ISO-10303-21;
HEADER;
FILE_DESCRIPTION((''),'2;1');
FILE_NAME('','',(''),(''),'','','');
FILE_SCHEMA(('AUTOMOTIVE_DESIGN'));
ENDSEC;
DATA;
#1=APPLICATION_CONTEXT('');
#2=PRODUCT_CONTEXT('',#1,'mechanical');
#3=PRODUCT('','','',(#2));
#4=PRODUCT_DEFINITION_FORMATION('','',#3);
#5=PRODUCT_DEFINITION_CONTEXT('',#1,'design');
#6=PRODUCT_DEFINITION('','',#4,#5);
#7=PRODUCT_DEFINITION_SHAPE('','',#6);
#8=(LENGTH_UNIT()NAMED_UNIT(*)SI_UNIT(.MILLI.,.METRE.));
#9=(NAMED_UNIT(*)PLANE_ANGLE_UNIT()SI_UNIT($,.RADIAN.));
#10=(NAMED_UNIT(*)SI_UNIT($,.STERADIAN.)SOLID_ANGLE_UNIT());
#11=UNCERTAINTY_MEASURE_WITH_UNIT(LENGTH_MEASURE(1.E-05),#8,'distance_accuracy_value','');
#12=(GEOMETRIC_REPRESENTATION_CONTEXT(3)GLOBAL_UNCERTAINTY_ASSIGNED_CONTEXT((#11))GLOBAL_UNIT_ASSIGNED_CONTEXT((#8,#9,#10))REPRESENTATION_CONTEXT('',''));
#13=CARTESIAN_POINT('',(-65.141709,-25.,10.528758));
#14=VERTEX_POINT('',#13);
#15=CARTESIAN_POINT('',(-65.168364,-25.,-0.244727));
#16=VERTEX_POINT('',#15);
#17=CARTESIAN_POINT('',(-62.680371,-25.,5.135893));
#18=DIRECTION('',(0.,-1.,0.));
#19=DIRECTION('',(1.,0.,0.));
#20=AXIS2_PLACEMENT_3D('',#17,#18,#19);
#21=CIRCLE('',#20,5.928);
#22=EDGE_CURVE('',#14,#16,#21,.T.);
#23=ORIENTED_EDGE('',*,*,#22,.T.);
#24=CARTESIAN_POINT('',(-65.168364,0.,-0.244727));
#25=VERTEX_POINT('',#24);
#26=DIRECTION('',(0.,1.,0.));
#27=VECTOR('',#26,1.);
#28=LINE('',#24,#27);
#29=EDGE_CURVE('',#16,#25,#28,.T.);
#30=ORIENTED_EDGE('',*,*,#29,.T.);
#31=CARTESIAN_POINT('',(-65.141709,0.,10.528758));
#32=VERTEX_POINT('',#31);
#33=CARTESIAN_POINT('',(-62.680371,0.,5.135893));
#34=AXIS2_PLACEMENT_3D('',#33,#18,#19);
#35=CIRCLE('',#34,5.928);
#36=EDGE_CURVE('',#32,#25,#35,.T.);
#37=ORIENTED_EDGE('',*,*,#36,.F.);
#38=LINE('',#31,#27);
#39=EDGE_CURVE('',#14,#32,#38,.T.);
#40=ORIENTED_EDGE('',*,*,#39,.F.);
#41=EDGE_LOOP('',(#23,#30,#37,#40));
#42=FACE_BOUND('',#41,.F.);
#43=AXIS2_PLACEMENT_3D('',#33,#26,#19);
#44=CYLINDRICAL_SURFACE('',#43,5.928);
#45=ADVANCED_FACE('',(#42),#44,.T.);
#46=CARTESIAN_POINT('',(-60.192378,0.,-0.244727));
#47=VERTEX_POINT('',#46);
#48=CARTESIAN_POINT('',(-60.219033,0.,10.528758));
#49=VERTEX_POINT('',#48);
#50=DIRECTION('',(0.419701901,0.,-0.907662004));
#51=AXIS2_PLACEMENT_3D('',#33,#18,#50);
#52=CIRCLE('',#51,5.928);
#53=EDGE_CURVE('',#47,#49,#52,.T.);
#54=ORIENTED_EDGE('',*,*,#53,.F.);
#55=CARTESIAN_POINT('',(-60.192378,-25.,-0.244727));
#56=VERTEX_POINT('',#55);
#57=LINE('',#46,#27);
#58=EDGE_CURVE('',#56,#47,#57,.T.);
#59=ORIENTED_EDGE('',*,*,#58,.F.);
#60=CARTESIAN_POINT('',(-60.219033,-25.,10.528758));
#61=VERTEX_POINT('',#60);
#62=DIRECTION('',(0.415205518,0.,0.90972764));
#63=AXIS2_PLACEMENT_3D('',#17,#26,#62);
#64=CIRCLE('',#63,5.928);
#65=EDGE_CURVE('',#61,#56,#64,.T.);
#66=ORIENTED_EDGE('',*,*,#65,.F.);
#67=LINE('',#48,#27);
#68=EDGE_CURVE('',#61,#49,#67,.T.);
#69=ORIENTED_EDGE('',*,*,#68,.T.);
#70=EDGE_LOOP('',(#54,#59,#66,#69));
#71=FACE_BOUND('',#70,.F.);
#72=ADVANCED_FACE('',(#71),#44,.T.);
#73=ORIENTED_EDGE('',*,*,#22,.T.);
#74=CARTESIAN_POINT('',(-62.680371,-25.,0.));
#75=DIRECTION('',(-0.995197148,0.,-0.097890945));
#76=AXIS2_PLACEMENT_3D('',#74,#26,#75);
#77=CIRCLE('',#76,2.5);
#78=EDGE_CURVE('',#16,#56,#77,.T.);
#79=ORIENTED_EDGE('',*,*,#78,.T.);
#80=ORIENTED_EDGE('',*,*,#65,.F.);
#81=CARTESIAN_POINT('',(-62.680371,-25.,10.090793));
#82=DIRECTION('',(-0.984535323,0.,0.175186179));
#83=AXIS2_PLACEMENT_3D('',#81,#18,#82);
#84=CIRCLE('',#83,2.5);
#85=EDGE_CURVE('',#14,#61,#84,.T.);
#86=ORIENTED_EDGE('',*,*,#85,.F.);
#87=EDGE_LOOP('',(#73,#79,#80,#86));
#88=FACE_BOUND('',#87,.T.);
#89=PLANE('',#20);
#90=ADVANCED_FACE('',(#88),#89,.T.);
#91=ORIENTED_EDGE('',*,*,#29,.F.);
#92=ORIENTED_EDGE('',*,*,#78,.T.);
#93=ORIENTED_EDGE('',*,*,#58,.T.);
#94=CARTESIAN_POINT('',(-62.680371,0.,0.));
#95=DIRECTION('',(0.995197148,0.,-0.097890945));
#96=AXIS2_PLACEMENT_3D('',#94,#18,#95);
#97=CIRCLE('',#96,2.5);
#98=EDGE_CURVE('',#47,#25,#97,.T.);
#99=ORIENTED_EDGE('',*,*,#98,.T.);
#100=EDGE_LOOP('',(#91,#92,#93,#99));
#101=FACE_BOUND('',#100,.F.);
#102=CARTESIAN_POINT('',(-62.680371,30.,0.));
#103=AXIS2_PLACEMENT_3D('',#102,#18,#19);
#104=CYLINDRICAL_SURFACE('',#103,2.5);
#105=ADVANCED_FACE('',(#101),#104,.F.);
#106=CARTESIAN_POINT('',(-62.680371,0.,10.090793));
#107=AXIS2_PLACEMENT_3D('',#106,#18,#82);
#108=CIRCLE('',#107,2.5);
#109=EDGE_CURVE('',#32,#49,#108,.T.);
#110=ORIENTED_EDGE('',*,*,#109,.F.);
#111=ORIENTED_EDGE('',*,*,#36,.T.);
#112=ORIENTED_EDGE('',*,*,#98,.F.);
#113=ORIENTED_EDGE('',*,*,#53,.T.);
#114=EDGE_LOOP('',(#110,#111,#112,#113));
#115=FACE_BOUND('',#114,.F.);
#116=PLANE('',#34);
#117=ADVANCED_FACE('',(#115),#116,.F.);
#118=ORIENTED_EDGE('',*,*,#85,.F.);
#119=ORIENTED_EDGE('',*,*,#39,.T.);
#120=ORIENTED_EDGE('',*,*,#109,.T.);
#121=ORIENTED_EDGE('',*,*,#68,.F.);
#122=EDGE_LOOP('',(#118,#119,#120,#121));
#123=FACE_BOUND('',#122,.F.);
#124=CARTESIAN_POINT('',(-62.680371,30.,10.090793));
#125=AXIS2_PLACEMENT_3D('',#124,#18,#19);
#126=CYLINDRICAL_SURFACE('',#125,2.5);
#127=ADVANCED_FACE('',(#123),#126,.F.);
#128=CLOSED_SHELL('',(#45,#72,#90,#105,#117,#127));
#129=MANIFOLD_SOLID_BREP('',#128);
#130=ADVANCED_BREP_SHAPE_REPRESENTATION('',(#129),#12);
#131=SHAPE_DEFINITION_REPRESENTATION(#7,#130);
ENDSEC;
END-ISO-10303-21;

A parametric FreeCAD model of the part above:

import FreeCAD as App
import Part
import Sketcher

doc = App.newDocument("Part")
body = doc.addObject("PartDesign::Body", "Body")

# Sketch on XZ plane
sketch1 = doc.addObject("Sketcher::SketchObject", "Sketch")
body.addObject(sketch1)
sketch1.AttachmentSupport = (doc.XZ_Plane, [""])
sketch1.MapMode = "FlatFace"
sketch1.addGeometry(Part.Circle(App.Vector(-63, 5, 0), App.Vector(0, 0, 1), 6), False)
sketch1.addConstraint([
    Sketcher.Constraint("Diameter", 0, 11.856),
    Sketcher.Constraint("DistanceX", 0, 3, -1, 1, 62.680371),
    Sketcher.Constraint("DistanceY", -1, 1, 0, 3, 5.135893),
])
pad1 = doc.addObject("PartDesign::Pad", "Pad")
body.addObject(pad1)
pad1.Profile = sketch1
pad1.Length = 25

# Sketch on XZ plane
sketch2 = doc.addObject("Sketcher::SketchObject", "Sketch001")
body.addObject(sketch2)
sketch2.AttachmentSupport = (doc.XZ_Plane, [""])
sketch2.MapMode = "FlatFace"
sketch2.addGeometry([
    Part.Circle(App.Vector(-62.7, 0, 0), App.Vector(0, 0, 1), 2.5),
    Part.Circle(App.Vector(-62.7, 10.1, 0), App.Vector(0, 0, 1), 2.5),
], False)
sketch2.addConstraint([
    Sketcher.Constraint("Equal", 0, 1),
    Sketcher.Constraint("PointOnObject", 0, 3, -1),
    Sketcher.Constraint("Vertical", 0, 3, 1, 3),
    Sketcher.Constraint("Diameter", 0, 5.0),
    Sketcher.Constraint("DistanceX", 0, 3, -1, 1, 62.680371),
    Sketcher.Constraint("DistanceY", -1, 1, 1, 3, 10.090793),
])
doc.recompute()
hole = doc.addObject("PartDesign::Hole", "Hole")
body.addObject(hole)
hole.Profile = sketch2
hole.ThreadType = "None"
hole.Diameter = 5
hole.DepthType = "Dimension"
hole.Depth = 30
hole.DrillPoint = "Flat"
hole.Reversed = True

doc.recompute()
